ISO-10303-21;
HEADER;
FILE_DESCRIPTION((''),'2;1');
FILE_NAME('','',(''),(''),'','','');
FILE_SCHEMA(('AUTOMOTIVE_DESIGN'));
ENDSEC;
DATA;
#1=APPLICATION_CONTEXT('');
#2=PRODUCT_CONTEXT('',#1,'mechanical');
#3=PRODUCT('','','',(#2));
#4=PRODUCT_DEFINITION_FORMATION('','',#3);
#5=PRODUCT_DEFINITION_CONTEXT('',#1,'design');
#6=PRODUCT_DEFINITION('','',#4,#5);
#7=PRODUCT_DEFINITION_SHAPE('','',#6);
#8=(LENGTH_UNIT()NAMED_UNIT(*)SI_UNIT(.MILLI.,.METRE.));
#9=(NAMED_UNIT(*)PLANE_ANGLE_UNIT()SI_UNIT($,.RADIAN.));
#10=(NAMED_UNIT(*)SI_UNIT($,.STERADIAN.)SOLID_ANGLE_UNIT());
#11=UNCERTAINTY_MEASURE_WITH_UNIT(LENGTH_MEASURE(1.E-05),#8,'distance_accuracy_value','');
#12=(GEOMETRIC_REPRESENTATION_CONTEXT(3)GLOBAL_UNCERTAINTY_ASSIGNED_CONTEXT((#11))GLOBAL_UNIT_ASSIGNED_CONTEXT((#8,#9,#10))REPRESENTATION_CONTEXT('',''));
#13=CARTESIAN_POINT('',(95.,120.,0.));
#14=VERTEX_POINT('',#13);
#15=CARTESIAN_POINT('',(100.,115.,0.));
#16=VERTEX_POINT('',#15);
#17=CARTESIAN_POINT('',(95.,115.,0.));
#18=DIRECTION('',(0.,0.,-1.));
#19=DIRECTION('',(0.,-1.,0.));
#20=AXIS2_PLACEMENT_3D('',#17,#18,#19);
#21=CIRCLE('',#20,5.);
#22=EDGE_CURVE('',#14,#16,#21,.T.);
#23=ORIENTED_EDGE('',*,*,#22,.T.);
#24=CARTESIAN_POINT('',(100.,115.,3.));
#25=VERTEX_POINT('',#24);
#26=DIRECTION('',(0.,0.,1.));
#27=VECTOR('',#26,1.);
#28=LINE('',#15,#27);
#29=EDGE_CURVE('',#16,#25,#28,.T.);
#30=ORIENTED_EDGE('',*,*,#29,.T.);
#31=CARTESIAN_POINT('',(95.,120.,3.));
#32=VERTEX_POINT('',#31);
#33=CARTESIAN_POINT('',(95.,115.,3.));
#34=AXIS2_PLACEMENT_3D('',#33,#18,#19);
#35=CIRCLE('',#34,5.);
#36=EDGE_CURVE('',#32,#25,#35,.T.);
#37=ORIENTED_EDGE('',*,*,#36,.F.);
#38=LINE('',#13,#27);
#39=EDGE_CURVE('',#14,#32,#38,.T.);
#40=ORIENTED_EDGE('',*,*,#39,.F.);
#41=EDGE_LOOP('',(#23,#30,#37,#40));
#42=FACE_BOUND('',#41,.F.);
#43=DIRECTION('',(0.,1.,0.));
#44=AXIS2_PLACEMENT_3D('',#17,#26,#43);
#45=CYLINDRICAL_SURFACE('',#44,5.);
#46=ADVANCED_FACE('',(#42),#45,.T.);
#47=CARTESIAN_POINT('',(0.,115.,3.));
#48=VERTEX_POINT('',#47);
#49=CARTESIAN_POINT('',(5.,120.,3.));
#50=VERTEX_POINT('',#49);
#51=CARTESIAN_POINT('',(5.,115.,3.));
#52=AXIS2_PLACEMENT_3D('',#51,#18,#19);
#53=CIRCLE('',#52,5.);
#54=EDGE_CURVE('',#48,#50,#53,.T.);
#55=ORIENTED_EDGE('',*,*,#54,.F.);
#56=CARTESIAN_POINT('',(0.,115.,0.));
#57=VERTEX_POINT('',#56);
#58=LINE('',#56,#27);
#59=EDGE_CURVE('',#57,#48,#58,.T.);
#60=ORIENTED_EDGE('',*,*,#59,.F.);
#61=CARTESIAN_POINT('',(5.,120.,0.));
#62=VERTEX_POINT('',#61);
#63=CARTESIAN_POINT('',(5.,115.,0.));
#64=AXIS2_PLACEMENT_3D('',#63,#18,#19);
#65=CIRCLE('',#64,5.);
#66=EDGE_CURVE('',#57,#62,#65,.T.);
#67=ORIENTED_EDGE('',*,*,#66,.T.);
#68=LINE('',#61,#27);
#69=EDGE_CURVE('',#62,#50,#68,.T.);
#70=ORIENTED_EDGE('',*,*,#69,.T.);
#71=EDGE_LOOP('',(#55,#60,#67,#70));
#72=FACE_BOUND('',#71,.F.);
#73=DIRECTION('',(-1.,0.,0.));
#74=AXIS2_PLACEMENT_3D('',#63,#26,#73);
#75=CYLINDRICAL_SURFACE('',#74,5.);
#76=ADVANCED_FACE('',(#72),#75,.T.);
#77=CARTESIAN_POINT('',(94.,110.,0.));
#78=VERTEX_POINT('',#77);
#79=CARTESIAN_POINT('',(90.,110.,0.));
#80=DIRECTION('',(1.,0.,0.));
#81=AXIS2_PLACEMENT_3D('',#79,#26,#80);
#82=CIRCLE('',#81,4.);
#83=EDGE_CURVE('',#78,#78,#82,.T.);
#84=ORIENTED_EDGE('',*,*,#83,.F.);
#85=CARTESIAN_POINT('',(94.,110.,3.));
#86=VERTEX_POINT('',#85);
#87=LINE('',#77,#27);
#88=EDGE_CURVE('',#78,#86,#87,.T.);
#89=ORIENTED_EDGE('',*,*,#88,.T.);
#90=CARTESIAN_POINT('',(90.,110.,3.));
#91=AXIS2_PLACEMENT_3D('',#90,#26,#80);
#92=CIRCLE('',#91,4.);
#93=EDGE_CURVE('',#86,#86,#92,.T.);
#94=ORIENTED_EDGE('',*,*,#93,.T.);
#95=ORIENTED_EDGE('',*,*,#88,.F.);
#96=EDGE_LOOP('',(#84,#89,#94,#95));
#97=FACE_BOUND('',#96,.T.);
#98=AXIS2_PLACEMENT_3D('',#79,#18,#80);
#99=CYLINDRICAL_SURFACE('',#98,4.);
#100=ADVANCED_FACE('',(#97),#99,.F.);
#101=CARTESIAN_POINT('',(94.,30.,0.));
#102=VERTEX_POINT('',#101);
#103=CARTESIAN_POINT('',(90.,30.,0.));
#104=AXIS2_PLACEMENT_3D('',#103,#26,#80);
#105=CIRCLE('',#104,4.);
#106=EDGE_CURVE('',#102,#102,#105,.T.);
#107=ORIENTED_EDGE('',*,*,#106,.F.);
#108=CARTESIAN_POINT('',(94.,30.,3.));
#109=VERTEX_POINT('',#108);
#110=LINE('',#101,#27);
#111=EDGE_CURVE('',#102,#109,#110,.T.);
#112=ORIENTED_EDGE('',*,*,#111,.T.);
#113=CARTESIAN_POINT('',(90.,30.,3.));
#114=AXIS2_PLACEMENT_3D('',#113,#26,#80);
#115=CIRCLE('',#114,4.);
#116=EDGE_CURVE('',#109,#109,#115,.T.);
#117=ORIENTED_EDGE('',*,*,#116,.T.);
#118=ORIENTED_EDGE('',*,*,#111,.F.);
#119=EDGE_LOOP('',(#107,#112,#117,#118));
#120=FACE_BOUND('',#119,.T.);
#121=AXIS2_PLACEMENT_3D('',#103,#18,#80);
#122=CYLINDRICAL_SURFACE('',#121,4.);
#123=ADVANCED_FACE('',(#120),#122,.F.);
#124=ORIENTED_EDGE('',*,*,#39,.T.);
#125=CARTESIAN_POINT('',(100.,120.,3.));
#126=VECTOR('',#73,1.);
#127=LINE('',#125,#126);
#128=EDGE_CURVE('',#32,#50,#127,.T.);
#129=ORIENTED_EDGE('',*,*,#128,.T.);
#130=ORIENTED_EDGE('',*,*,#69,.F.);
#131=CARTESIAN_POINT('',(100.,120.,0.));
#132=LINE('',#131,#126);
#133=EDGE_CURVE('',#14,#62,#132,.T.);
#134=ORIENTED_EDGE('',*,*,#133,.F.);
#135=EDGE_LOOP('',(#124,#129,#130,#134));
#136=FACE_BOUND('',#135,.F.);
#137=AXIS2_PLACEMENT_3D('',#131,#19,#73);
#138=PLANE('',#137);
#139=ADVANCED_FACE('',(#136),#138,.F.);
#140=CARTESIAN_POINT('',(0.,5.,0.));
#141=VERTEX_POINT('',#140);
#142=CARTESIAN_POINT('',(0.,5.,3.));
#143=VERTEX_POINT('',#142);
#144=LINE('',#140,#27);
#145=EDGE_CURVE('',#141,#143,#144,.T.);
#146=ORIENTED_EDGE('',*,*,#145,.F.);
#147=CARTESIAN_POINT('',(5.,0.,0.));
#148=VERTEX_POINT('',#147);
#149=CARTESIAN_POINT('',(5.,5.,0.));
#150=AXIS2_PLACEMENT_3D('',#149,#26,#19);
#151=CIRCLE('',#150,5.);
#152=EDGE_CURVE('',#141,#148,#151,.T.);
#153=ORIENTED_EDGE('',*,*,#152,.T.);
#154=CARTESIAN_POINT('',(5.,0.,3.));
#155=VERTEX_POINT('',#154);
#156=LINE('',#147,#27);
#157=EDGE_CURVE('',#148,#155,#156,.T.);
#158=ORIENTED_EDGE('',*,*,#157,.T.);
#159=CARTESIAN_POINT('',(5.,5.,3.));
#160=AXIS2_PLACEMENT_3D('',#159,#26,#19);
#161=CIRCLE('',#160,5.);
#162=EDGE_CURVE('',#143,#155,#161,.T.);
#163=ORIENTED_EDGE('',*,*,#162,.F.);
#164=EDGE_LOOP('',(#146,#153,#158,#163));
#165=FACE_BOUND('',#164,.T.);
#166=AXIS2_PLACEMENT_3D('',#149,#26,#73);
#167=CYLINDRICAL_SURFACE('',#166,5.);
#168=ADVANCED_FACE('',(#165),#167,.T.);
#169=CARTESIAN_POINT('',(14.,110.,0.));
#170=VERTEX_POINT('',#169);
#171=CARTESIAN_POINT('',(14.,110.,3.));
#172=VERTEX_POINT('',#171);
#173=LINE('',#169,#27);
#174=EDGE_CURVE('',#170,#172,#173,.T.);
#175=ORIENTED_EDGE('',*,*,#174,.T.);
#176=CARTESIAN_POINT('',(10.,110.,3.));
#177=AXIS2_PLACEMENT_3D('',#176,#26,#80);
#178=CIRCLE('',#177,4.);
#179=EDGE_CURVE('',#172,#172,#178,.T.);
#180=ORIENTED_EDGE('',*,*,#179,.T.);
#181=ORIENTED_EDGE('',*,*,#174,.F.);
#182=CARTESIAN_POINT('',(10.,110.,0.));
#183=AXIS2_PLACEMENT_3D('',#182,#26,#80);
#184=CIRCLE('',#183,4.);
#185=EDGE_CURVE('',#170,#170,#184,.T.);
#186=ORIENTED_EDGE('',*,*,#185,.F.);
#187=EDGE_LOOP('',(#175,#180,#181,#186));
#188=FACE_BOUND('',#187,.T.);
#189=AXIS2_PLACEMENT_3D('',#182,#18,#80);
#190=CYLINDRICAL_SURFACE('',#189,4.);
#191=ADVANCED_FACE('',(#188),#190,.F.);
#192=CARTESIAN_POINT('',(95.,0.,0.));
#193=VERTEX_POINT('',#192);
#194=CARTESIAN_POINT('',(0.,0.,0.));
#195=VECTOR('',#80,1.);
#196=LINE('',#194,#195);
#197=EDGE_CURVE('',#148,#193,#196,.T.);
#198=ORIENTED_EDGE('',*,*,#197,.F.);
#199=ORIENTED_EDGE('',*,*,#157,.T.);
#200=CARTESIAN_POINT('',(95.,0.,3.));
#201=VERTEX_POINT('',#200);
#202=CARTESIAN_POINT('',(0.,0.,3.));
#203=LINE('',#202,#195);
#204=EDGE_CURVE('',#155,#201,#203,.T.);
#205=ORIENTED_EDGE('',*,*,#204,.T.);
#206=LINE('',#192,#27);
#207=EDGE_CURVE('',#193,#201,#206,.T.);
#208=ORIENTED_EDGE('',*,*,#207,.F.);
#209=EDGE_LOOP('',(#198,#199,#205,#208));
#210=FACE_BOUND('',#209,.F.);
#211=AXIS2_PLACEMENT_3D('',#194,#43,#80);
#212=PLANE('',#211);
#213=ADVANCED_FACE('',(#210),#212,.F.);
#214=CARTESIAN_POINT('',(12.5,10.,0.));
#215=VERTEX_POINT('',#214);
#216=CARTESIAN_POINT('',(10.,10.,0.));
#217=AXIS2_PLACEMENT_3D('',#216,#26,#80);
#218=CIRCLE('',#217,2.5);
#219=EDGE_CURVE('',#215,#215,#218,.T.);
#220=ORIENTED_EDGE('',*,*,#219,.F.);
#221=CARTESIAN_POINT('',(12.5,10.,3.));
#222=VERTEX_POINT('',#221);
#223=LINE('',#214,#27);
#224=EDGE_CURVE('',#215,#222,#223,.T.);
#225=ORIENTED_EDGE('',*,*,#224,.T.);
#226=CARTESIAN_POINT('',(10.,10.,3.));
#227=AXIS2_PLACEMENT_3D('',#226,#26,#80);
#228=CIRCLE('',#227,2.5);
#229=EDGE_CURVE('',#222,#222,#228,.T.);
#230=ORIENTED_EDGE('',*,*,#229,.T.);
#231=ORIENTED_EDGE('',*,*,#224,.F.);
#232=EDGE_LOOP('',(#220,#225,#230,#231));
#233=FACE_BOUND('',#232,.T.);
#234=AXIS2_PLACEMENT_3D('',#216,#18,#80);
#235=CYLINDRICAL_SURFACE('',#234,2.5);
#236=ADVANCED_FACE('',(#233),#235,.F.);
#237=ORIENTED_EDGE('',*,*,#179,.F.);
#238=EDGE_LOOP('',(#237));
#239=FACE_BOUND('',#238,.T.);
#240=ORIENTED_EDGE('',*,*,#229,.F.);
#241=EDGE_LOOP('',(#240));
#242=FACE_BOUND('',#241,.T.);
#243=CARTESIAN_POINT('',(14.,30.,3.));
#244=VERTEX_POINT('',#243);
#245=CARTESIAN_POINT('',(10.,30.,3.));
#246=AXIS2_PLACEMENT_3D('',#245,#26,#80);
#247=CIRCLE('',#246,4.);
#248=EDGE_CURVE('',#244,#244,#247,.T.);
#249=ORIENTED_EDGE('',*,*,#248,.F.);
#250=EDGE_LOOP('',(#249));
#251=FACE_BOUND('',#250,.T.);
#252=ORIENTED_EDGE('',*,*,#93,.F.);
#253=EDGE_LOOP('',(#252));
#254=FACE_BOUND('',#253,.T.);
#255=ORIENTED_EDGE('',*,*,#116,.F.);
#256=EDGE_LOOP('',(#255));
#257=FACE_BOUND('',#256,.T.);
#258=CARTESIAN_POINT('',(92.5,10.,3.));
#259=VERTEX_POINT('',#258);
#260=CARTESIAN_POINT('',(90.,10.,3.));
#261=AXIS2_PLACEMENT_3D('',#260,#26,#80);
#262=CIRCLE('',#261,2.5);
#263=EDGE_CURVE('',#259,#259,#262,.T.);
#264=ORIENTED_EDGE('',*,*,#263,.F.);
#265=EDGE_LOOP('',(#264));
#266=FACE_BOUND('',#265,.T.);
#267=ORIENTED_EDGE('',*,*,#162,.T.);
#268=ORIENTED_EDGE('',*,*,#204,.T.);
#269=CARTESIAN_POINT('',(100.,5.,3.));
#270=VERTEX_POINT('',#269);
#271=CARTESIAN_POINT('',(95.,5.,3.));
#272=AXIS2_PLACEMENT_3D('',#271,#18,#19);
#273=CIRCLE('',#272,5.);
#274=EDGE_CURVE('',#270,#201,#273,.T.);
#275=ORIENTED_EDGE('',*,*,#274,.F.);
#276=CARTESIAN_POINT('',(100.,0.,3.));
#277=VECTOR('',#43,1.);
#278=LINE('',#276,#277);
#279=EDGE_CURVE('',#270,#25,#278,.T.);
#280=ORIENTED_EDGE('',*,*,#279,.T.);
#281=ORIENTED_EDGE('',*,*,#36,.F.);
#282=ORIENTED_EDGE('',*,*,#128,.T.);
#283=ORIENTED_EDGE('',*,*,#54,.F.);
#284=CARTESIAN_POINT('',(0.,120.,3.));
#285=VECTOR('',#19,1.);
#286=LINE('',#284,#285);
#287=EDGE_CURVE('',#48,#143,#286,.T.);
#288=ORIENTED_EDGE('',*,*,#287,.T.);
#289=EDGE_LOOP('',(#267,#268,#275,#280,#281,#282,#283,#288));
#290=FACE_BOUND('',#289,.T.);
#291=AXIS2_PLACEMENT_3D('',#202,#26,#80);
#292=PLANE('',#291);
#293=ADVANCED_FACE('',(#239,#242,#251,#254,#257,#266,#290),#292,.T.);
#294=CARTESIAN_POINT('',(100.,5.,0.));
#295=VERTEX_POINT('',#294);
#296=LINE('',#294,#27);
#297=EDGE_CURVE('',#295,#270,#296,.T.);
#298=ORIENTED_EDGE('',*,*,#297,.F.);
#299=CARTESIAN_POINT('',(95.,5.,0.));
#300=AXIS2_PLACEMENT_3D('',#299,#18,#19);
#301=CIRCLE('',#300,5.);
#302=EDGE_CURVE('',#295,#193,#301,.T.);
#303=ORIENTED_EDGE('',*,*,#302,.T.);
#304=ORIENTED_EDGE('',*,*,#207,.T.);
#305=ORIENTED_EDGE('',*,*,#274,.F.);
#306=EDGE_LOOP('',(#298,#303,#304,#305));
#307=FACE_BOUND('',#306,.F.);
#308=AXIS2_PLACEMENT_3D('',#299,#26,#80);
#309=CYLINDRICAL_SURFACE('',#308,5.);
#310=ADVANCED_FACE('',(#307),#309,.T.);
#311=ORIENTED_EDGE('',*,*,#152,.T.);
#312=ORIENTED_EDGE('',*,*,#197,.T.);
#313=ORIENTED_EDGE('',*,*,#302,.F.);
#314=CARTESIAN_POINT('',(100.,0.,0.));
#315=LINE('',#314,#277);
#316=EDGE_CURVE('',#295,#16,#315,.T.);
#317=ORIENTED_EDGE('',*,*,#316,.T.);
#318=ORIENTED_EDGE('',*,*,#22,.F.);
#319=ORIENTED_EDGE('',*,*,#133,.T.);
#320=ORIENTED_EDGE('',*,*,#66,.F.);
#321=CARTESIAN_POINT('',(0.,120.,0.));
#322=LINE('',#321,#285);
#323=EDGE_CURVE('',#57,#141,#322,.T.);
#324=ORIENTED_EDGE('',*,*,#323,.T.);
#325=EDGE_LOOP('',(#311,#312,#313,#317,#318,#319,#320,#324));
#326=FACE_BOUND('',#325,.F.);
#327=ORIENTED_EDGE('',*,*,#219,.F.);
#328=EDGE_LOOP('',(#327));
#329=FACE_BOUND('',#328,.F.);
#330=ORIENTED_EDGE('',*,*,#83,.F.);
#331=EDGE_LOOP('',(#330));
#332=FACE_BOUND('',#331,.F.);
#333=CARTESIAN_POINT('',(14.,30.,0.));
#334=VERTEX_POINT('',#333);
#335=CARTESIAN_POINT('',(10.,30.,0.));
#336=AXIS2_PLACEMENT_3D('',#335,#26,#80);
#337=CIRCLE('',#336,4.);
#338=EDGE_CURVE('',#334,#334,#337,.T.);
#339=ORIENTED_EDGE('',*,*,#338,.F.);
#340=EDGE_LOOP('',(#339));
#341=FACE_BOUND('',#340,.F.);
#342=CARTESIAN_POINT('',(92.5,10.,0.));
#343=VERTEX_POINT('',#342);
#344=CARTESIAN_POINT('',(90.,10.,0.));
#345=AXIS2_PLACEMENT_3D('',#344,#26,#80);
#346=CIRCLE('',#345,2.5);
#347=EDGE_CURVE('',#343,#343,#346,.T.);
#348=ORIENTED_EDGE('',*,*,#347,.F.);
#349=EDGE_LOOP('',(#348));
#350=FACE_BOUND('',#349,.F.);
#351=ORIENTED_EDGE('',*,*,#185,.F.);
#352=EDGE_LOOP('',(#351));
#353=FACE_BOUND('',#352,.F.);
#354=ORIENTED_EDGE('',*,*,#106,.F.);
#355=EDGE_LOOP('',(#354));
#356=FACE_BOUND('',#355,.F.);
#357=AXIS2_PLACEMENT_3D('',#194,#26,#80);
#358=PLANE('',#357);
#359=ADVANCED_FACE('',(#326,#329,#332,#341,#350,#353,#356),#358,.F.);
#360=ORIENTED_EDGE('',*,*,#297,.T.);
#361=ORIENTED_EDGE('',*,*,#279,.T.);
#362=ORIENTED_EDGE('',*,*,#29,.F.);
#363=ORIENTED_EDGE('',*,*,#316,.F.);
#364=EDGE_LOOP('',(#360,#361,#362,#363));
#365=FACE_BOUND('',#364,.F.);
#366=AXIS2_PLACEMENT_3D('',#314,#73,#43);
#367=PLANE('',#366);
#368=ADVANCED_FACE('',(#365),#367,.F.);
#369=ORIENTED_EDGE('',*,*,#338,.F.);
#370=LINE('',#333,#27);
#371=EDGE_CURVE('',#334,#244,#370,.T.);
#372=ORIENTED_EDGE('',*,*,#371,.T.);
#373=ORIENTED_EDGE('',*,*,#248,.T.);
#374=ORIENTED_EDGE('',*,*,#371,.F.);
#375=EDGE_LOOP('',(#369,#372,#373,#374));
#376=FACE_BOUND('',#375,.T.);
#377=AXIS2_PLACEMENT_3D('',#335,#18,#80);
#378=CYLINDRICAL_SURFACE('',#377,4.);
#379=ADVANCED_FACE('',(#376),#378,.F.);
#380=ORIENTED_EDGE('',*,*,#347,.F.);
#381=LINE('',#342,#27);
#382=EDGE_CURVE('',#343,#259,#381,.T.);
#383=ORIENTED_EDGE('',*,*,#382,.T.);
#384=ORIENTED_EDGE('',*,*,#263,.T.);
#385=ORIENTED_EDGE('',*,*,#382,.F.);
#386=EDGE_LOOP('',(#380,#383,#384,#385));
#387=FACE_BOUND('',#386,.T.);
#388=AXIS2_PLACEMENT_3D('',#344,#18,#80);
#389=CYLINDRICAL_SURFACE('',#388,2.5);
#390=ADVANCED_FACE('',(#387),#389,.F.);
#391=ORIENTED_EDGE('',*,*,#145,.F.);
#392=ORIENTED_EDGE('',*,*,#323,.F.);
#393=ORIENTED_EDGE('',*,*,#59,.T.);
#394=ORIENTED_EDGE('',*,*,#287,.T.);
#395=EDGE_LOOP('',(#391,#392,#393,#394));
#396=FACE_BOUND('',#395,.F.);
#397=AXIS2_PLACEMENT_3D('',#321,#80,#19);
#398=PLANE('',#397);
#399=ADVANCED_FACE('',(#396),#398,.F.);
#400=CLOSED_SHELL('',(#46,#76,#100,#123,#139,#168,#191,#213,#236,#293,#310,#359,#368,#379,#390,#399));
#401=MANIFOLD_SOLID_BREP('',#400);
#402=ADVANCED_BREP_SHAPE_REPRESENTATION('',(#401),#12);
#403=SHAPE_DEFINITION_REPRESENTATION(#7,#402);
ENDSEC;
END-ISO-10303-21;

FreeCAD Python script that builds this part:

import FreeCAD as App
import Part
import Sketcher

V = App.Vector


def edges_at(feature, points):
    """Names of the edges that pass closest to the given points."""
    edges = feature.Shape.Edges
    near = lambda p: min(range(len(edges)), key=lambda i: edges[i].distToShape(Part.Vertex(*p))[0])
    return sorted({f"Edge{near(p) + 1}" for p in points})


def add_polygon(sketch, points):
    """Adds a closed chain of lines whose ends are joined by coincident constraints."""
    first, n = sketch.GeometryCount, len(points)
    for a, b in zip(points, points[1:] + points[:1]):
        sketch.addGeometry(Part.LineSegment(App.Vector(*a, 0), App.Vector(*b, 0)), False)
    for i in range(n):
        sketch.addConstraint(Sketcher.Constraint("Coincident", first + i, 2, first + (i + 1) % n, 1))

doc = App.newDocument("Part")
params = doc.addObject("Spreadsheet::Sheet", "Params")
for row, (alias, value) in enumerate([
    ("sketch1_diameter", "5 mm"),
    ("sketch1_diameter2", "8 mm"),
    ("sketch1_width", "100 mm"),
    ("sketch1_height", "120 mm"),
    ("pad1_length", "3 mm"),
    ("fillet_radius", "5 mm"),
], start=1):
    params.set(f"A{row}", alias)
    params.set(f"B{row}", "=" + value)
    params.setAlias(f"B{row}", alias)

body = doc.addObject("PartDesign::Body", "Body")

# Sketch on XY plane
sketch1 = doc.addObject("Sketcher::SketchObject", "Sketch")
body.addObject(sketch1)
sketch1.AttachmentSupport = (doc.XY_Plane, [""])
sketch1.MapMode = "FlatFace"
add_polygon(sketch1, [(0, 120), (0, 0), (100, 0), (100, 120)])  # lines 0-3
sketch1.addGeometry(Part.Circle(V(10, 10, 0), V(0, 0, 1), 2.5), False)  # 4
sketch1.addGeometry(Part.Circle(V(10, 30, 0), V(0, 0, 1), 4), False)  # 5
sketch1.addGeometry(Part.Circle(V(90, 10, 0), V(0, 0, 1), 2.5), False)  # 6
sketch1.addGeometry(Part.Circle(V(90, 30, 0), V(0, 0, 1), 4), False)  # 7
sketch1.addGeometry(Part.Circle(V(10, 110, 0), V(0, 0, 1), 4), False)  # 8
sketch1.addGeometry(Part.Circle(V(90, 110, 0), V(0, 0, 1), 4), False)  # 9
sketch1.addConstraint([
    Sketcher.Constraint("Vertical", 0),
    Sketcher.Constraint("Horizontal", 1),
    Sketcher.Constraint("Vertical", 2),
    Sketcher.Constraint("Horizontal", 3),
    Sketcher.Constraint("Coincident", 0, 2, -1, 1),
    Sketcher.Constraint("Equal", 4, 6),
    Sketcher.Constraint("Equal", 5, 7),
    Sketcher.Constraint("Equal", 7, 8),
    Sketcher.Constraint("Equal", 8, 9),
    Sketcher.Constraint("Horizontal", 4, 3, 6, 3),
    Sketcher.Constraint("Horizontal", 5, 3, 7, 3),
    Sketcher.Constraint("Horizontal", 8, 3, 9, 3),
    Sketcher.Constraint("Vertical", 4, 3, 5, 3),
    Sketcher.Constraint("Vertical", 6, 3, 7, 3),
    Sketcher.Constraint("Vertical", 5, 3, 8, 3),
    Sketcher.Constraint("Vertical", 7, 3, 9, 3),
    Sketcher.Constraint("Diameter", 4, 5.0),
    Sketcher.Constraint("Diameter", 5, 8.0),
    Sketcher.Constraint("DistanceX", 1, 1, 1, 2, 100.0),
    Sketcher.Constraint("DistanceY", 0, 2, 0, 1, 120.0),
    Sketcher.Constraint("DistanceX", -1, 1, 4, 3, 10.0),
    Sketcher.Constraint("DistanceY", -1, 1, 4, 3, 10.0),
    Sketcher.Constraint("DistanceX", 4, 3, 6, 3, 80.0),
    Sketcher.Constraint("DistanceY", 5, 3, 8, 3, 80.0),
    Sketcher.Constraint("DistanceY", 4, 3, 8, 3, 100.0),
])
sketch1.setExpression("Constraints[20]", "Params.sketch1_diameter")
sketch1.setExpression("Constraints[21]", "Params.sketch1_diameter2")
sketch1.setExpression("Constraints[22]", "Params.sketch1_width")
sketch1.setExpression("Constraints[23]", "Params.sketch1_height")
pad1 = doc.addObject("PartDesign::Pad", "Pad")
body.addObject(pad1)
pad1.Profile = sketch1
pad1.setExpression("Length", "Params.pad1_length")
doc.recompute()

fillet = doc.addObject("PartDesign::Fillet", "Fillet")
body.addObject(fillet)
fillet.Base = (pad1, edges_at(pad1, [
    (100, 120, 1.5),
    (0, 120, 1.5),
    (100, 0, 1.5),
    (0, 0, 1.5),
]))
fillet.setExpression("Radius", "Params.fillet_radius")

doc.recompute()
